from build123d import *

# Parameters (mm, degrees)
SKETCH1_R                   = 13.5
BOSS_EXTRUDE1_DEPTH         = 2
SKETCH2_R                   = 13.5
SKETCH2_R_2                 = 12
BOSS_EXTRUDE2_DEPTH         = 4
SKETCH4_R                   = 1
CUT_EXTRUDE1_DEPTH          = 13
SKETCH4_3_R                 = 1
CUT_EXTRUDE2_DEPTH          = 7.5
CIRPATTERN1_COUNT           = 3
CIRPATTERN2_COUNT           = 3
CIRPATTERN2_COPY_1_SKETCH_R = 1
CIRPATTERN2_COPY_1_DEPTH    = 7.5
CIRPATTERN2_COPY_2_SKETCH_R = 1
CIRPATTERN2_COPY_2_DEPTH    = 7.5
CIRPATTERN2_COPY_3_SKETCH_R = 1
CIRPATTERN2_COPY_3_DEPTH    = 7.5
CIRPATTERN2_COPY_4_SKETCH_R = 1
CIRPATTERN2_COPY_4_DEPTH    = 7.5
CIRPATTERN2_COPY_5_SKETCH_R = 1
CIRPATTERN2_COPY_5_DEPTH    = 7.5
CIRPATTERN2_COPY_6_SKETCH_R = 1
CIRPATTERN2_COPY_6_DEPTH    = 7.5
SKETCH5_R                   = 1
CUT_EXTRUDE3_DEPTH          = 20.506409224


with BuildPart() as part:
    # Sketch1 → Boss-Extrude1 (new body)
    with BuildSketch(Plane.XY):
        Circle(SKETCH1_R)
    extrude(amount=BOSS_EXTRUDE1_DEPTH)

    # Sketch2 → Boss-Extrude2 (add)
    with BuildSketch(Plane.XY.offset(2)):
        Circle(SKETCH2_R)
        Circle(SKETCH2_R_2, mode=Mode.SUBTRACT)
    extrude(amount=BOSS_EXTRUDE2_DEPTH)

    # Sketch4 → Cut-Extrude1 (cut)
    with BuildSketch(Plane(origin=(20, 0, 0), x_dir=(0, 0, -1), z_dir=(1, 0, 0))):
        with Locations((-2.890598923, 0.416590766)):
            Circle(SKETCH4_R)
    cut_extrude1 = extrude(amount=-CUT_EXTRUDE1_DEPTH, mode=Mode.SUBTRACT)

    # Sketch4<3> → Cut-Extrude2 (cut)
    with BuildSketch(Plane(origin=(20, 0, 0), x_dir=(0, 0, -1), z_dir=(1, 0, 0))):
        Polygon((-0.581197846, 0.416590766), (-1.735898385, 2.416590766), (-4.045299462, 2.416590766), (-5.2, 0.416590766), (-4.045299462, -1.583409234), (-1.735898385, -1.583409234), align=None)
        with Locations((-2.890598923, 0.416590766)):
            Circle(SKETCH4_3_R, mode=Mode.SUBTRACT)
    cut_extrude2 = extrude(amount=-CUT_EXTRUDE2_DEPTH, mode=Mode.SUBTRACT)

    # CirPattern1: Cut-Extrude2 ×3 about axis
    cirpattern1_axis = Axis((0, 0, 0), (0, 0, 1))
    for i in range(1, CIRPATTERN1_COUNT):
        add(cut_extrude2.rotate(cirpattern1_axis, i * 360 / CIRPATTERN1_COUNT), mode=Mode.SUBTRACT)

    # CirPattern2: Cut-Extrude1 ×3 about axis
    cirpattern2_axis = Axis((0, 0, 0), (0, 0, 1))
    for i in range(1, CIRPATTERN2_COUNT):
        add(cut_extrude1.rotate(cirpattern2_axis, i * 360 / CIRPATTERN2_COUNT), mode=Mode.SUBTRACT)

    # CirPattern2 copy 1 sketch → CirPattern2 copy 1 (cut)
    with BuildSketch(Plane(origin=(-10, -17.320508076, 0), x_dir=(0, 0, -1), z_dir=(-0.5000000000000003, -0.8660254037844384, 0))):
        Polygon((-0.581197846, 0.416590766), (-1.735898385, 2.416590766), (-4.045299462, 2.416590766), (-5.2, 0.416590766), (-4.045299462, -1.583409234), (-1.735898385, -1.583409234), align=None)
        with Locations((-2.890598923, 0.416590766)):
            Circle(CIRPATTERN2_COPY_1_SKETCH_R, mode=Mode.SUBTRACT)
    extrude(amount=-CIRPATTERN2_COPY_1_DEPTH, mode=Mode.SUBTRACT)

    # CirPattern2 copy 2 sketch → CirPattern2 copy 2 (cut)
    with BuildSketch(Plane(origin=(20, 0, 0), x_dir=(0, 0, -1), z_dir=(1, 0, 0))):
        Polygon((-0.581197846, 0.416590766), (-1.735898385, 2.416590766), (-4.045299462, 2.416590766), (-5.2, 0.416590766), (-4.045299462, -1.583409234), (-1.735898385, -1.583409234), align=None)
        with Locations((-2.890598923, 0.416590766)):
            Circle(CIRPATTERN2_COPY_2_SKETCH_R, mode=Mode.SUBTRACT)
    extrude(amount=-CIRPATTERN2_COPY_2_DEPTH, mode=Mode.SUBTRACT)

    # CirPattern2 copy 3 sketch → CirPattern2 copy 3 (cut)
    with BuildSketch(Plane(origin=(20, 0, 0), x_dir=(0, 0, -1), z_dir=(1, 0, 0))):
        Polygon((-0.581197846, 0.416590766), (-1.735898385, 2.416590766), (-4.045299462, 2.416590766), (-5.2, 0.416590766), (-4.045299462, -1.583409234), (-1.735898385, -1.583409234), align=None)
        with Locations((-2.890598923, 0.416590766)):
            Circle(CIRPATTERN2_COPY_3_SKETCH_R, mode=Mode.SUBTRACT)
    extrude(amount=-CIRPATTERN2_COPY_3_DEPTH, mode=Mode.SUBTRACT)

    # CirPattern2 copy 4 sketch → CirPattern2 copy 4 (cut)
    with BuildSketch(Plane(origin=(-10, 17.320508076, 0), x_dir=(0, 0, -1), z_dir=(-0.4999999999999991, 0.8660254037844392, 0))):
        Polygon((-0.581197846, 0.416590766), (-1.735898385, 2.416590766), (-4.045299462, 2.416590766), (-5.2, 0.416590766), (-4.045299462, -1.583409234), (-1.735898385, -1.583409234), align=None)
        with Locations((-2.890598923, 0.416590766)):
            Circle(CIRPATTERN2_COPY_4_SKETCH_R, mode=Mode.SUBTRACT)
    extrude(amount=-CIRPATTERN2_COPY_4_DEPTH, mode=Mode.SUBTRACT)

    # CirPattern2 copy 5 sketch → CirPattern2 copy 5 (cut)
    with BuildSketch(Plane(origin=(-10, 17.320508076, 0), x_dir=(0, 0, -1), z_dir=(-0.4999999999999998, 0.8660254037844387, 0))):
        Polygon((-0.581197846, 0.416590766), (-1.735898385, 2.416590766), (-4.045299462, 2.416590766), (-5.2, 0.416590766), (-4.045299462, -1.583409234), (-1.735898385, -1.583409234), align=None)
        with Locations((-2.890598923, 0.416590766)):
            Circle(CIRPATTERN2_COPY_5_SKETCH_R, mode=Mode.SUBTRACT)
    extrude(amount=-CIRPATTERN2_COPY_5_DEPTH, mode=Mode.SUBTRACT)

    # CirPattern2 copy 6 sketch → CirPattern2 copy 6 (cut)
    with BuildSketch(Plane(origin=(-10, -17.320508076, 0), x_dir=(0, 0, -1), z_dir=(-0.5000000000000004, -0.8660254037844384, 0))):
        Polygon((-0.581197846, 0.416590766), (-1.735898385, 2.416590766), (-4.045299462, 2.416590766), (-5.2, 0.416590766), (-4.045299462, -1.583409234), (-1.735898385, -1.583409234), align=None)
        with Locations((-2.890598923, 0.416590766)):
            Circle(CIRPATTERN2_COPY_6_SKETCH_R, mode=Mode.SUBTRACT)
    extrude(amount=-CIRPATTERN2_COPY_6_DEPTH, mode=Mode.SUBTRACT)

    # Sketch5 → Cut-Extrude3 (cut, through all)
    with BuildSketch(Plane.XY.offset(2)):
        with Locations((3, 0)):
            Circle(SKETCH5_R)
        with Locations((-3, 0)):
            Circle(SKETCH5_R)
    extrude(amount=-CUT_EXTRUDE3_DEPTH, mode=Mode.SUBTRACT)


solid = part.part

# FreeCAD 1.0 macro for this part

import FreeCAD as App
import Part
import Sketcher
from FreeCAD import Vector
Q = App.Units.Quantity


def add_polygon(sketch, points):
    """Adds a closed chain of lines whose ends are joined by coincident constraints."""
    first, n = sketch.GeometryCount, len(points)
    for a, b in zip(points, points[1:] + points[:1]):
        sketch.addGeometry(Part.LineSegment(App.Vector(*a, 0), App.Vector(*b, 0)), False)
    for i in range(n):
        sketch.addConstraint(Sketcher.Constraint("Coincident", first + i, 2, first + (i + 1) % n, 1))

doc = App.newDocument("Part")
params = doc.addObject("Spreadsheet::Sheet", "Params")
for row, (alias, value) in enumerate([
    ("sketch1_diameter", "27 mm"),
    ("pad1_length", "2 mm"),
    ("sketch2_diameter", "27 mm"),
    ("sketch2_diameter2", "24 mm"),
    ("pad2_length", "4 mm"),
    ("sketch3_diameter", "2 mm"),
    ("pocket1_length", "13 mm"),
    ("sketch4_diameter", "2 mm"),
    ("pocket2_length", "7.5 mm"),
    ("sketch5_diameter", "2 mm"),
    ("pocket3_length", "7.5 mm"),
    ("sketch6_diameter", "2 mm"),
    ("pocket4_length", "7.5 mm"),
    ("sketch7_diameter", "2 mm"),
    ("pocket5_length", "7.5 mm"),
    ("sketch8_diameter", "2 mm"),
    ("pocket6_length", "7.5 mm"),
    ("sketch9_diameter", "2 mm"),
    ("pocket7_length", "7.5 mm"),
    ("sketch10_diameter", "2 mm"),
    ("pocket8_length", "7.5 mm"),
    ("sketch11_diameter", "2 mm"),
], start=1):
    params.set(f"A{row}", alias)
    params.set(f"B{row}", "=" + value)
    params.setAlias(f"B{row}", alias)

body = doc.addObject("PartDesign::Body", "Body")

sketch1 = body.newObject("Sketcher::SketchObject", "Sketch")
sketch1.AttachmentSupport = (doc.getObject("XY_Plane"), [""])
sketch1.MapMode = "FlatFace"
sketch1.addGeometry(Part.Circle(Vector(0, 0, 0), Vector(0, 0, 1), 13.5), False)
sketch1.addConstraint([
    Sketcher.Constraint("Coincident", 0, 3, -1, 1),
    Sketcher.Constraint("Diameter", 0, 27.0),
])
sketch1.setExpression("Constraints[1]", "Params.sketch1_diameter")
pad1 = body.newObject("PartDesign::Pad", "Pad")
pad1.Profile = sketch1
pad1.setExpression("Length", "Params.pad1_length")

sketch2 = body.newObject("Sketcher::SketchObject", "Sketch001")
sketch2.AttachmentSupport = (doc.getObject("XY_Plane"), [""])
sketch2.MapMode = "FlatFace"
sketch2.AttachmentOffset = App.Placement(Vector(0, 0, 2), App.Rotation())
sketch2.addGeometry([
    Part.Circle(Vector(0, 0, 0), Vector(0, 0, 1), 13.5),
    Part.Circle(Vector(0, 0, 0), Vector(0, 0, 1), 12),
], False)
sketch2.addConstraint([
    Sketcher.Constraint("Coincident", 0, 3, -1, 1),
    Sketcher.Constraint("Coincident", 1, 3, -1, 1),
    Sketcher.Constraint("Diameter", 0, 27.0),
    Sketcher.Constraint("Diameter", 1, 24.0),
])
sketch2.setExpression("Constraints[2]", "Params.sketch2_diameter")
sketch2.setExpression("Constraints[3]", "Params.sketch2_diameter2")
pad2 = body.newObject("PartDesign::Pad", "Pad001")
pad2.Profile = sketch2
pad2.setExpression("Length", "Params.pad2_length")

sketch3 = body.newObject("Sketcher::SketchObject", "Sketch002")
sketch3.AttachmentSupport = (doc.getObject("YZ_Plane"), [""])
sketch3.MapMode = "FlatFace"
sketch3.AttachmentOffset = App.Placement(Vector(0, 0, 20), App.Rotation())
sketch3.addGeometry(Part.Circle(Vector(0.416591, 2.890599, 0), Vector(0, 0, 1), 1), False)
sketch3.addConstraint([
    Sketcher.Constraint("Diameter", 0, 2.0),
    Sketcher.Constraint("DistanceY", -1, 1, 0, 3, 2.890599),
    Sketcher.Constraint("DistanceX", -1, 1, 0, 3, 0.416591),
])
sketch3.setExpression("Constraints[0]", "Params.sketch3_diameter")
pocket1 = body.newObject("PartDesign::Pocket", "Pocket")
pocket1.Profile = sketch3
pocket1.setExpression("Length", "Params.pocket1_length")

sketch4 = body.newObject("Sketcher::SketchObject", "Sketch003")
sketch4.AttachmentSupport = (doc.getObject("YZ_Plane"), [""])
sketch4.MapMode = "FlatFace"
sketch4.AttachmentOffset = App.Placement(Vector(0, 0, 20), App.Rotation())
add_polygon(sketch4, [(0.416591, 0.581198), (2.416591, 1.735898), (2.416591, 4.045299), (0.416591, 5.2), (-1.583409, 4.045299), (-1.583409, 1.735898)])
sketch4.addGeometry(Part.Circle(Vector(0.416591, 2.890599, 0), Vector(0, 0, 1), 1), False)
sketch4.addConstraint([
    Sketcher.Constraint("Vertical", 1),
    Sketcher.Constraint("Vertical", 4),
    Sketcher.Constraint("Parallel", 0, 3),
    Sketcher.Constraint("Parallel", 2, 5),
    Sketcher.Constraint("Horizontal", 1, 2, 3, 2),
    Sketcher.Constraint("Horizontal", 0, 2, 4, 2),
    Sketcher.Constraint("Vertical", 6, 3, 2, 2),
    Sketcher.Constraint("Vertical", 2, 2, 5, 2),
    Sketcher.Constraint("Diameter", 6, 2.0),
    Sketcher.Constraint("Angle", 0, Q("30 deg")),
    Sketcher.Constraint("DistanceX", 6, 3, 0, 2, 2.0),
    Sketcher.Constraint("DistanceY", -1, 1, 2, 2, 5.2),
    Sketcher.Constraint("DistanceY", 1, 1, 1, 2, 2.309401),
    Sketcher.Constraint("DistanceY", -1, 1, 6, 3, 2.890599),
    Sketcher.Constraint("DistanceX", -1, 1, 6, 3, 0.416591),
])
sketch4.setExpression("Constraints[14]", "Params.sketch4_diameter")
pocket2 = body.newObject("PartDesign::Pocket", "Pocket001")
pocket2.Profile = sketch4
pocket2.setExpression("Length", "Params.pocket2_length")
doc.recompute()

polarpattern = body.newObject("PartDesign::PolarPattern", "PolarPattern")
polarpattern.Originals = [pocket2]
polarpattern.Axis = (doc.getObject("Z_Axis"), [""])
polarpattern.Angle = 360
polarpattern.Occurrences = 3
body.Tip = polarpattern
doc.recompute()

polarpattern2 = body.newObject("PartDesign::PolarPattern", "PolarPattern001")
polarpattern2.Originals = [pocket1]
polarpattern2.Axis = (doc.getObject("Z_Axis"), [""])
polarpattern2.Angle = 360
polarpattern2.Occurrences = 3
body.Tip = polarpattern2

sketch5 = body.newObject("Sketcher::SketchObject", "Sketch004")
sketch5.Placement = App.Placement(Vector(-10, -17.320508, 0), App.Rotation(Vector(0, 0, -1), Vector(0.866025404, -0.5, 0), Vector(-0.5, -0.866025404, 0), "ZXY"))
add_polygon(sketch5, [(-0.581198, 0.416591), (-1.735898, 2.416591), (-4.045299, 2.416591), (-5.2, 0.416591), (-4.045299, -1.583409), (-1.735898, -1.583409)])
sketch5.addGeometry(Part.Circle(Vector(-2.890599, 0.416591, 0), Vector(0, 0, 1), 1), False)
sketch5.addConstraint([
    Sketcher.Constraint("Horizontal", 1),
    Sketcher.Constraint("Horizontal", 4),
    Sketcher.Constraint("Parallel", 0, 3),
    Sketcher.Constraint("Parallel", 2, 5),
    Sketcher.Constraint("Horizontal", 6, 3, 2, 2),
    Sketcher.Constraint("Horizontal", 2, 2, 5, 2),
    Sketcher.Constraint("Vertical", 1, 2, 3, 2),
    Sketcher.Constraint("Vertical", 0, 2, 4, 2),
    Sketcher.Constraint("Diameter", 6, 2.0),
    Sketcher.Constraint("Angle", 0, Q("120 deg")),
    Sketcher.Constraint("DistanceY", 6, 3, 0, 2, 2.0),
    Sketcher.Constraint("DistanceX", 2, 2, -1, 1, 5.2),
    Sketcher.Constraint("DistanceX", 1, 2, 1, 1, 2.309401),
    Sketcher.Constraint("DistanceX", 6, 3, -1, 1, 2.890599),
    Sketcher.Constraint("DistanceY", -1, 1, 6, 3, 0.416591),
])
sketch5.setExpression("Constraints[14]", "Params.sketch5_diameter")
pocket3 = body.newObject("PartDesign::Pocket", "Pocket002")
pocket3.Profile = sketch5
pocket3.setExpression("Length", "Params.pocket3_length")

sketch6 = body.newObject("Sketcher::SketchObject", "Sketch005")
sketch6.AttachmentSupport = (doc.getObject("YZ_Plane"), [""])
sketch6.MapMode = "FlatFace"
sketch6.AttachmentOffset = App.Placement(Vector(0, 0, 20), App.Rotation())
add_polygon(sketch6, [(0.416591, 0.581198), (2.416591, 1.735898), (2.416591, 4.045299), (0.416591, 5.2), (-1.583409, 4.045299), (-1.583409, 1.735898)])
sketch6.addGeometry(Part.Circle(Vector(0.416591, 2.890599, 0), Vector(0, 0, 1), 1), False)
sketch6.addConstraint([
    Sketcher.Constraint("Vertical", 1),
    Sketcher.Constraint("Vertical", 4),
    Sketcher.Constraint("Parallel", 0, 3),
    Sketcher.Constraint("Parallel", 2, 5),
    Sketcher.Constraint("Horizontal", 1, 2, 3, 2),
    Sketcher.Constraint("Horizontal", 0, 2, 4, 2),
    Sketcher.Constraint("Vertical", 6, 3, 2, 2),
    Sketcher.Constraint("Vertical", 2, 2, 5, 2),
    Sketcher.Constraint("Diameter", 6, 2.0),
    Sketcher.Constraint("Angle", 0, Q("30 deg")),
    Sketcher.Constraint("DistanceX", 6, 3, 0, 2, 2.0),
    Sketcher.Constraint("DistanceY", -1, 1, 2, 2, 5.2),
    Sketcher.Constraint("DistanceY", 1, 1, 1, 2, 2.309401),
    Sketcher.Constraint("DistanceY", -1, 1, 6, 3, 2.890599),
    Sketcher.Constraint("DistanceX", -1, 1, 6, 3, 0.416591),
])
sketch6.setExpression("Constraints[14]", "Params.sketch6_diameter")
pocket4 = body.newObject("PartDesign::Pocket", "Pocket003")
pocket4.Profile = sketch6
pocket4.setExpression("Length", "Params.pocket4_length")

sketch7 = body.newObject("Sketcher::SketchObject", "Sketch006")
sketch7.AttachmentSupport = (doc.getObject("YZ_Plane"), [""])
sketch7.MapMode = "FlatFace"
sketch7.AttachmentOffset = App.Placement(Vector(0, 0, 20), App.Rotation())
add_polygon(sketch7, [(0.416591, 0.581198), (2.416591, 1.735898), (2.416591, 4.045299), (0.416591, 5.2), (-1.583409, 4.045299), (-1.583409, 1.735898)])
sketch7.addGeometry(Part.Circle(Vector(0.416591, 2.890599, 0), Vector(0, 0, 1), 1), False)
sketch7.addConstraint([
    Sketcher.Constraint("Vertical", 1),
    Sketcher.Constraint("Vertical", 4),
    Sketcher.Constraint("Parallel", 0, 3),
    Sketcher.Constraint("Parallel", 2, 5),
    Sketcher.Constraint("Horizontal", 1, 2, 3, 2),
    Sketcher.Constraint("Horizontal", 0, 2, 4, 2),
    Sketcher.Constraint("Vertical", 6, 3, 2, 2),
    Sketcher.Constraint("Vertical", 2, 2, 5, 2),
    Sketcher.Constraint("Diameter", 6, 2.0),
    Sketcher.Constraint("Angle", 0, Q("30 deg")),
    Sketcher.Constraint("DistanceX", 6, 3, 0, 2, 2.0),
    Sketcher.Constraint("DistanceY", -1, 1, 2, 2, 5.2),
    Sketcher.Constraint("DistanceY", 1, 1, 1, 2, 2.309401),
    Sketcher.Constraint("DistanceY", -1, 1, 6, 3, 2.890599),
    Sketcher.Constraint("DistanceX", -1, 1, 6, 3, 0.416591),
])
sketch7.setExpression("Constraints[14]", "Params.sketch7_diameter")
pocket5 = body.newObject("PartDesign::Pocket", "Pocket004")
pocket5.Profile = sketch7
pocket5.setExpression("Length", "Params.pocket5_length")

sketch8 = body.newObject("Sketcher::SketchObject", "Sketch007")
sketch8.Placement = App.Placement(Vector(-10, 17.320508, 0), App.Rotation(Vector(0, 0, -1), Vector(-0.866025404, -0.5, 0), Vector(-0.5, 0.866025404, 0), "ZXY"))
add_polygon(sketch8, [(-0.581198, 0.416591), (-1.735898, 2.416591), (-4.045299, 2.416591), (-5.2, 0.416591), (-4.045299, -1.583409), (-1.735898, -1.583409)])
sketch8.addGeometry(Part.Circle(Vector(-2.890599, 0.416591, 0), Vector(0, 0, 1), 1), False)
sketch8.addConstraint([
    Sketcher.Constraint("Horizontal", 1),
    Sketcher.Constraint("Horizontal", 4),
    Sketcher.Constraint("Parallel", 0, 3),
    Sketcher.Constraint("Parallel", 2, 5),
    Sketcher.Constraint("Horizontal", 6, 3, 2, 2),
    Sketcher.Constraint("Horizontal", 2, 2, 5, 2),
    Sketcher.Constraint("Vertical", 1, 2, 3, 2),
    Sketcher.Constraint("Vertical", 0, 2, 4, 2),
    Sketcher.Constraint("Diameter", 6, 2.0),
    Sketcher.Constraint("Angle", 0, Q("120 deg")),
    Sketcher.Constraint("DistanceY", 6, 3, 0, 2, 2.0),
    Sketcher.Constraint("DistanceX", 2, 2, -1, 1, 5.2),
    Sketcher.Constraint("DistanceX", 1, 2, 1, 1, 2.309401),
    Sketcher.Constraint("DistanceX", 6, 3, -1, 1, 2.890599),
    Sketcher.Constraint("DistanceY", -1, 1, 6, 3, 0.416591),
])
sketch8.setExpression("Constraints[14]", "Params.sketch8_diameter")
pocket6 = body.newObject("PartDesign::Pocket", "Pocket005")
pocket6.Profile = sketch8
pocket6.setExpression("Length", "Params.pocket6_length")

sketch9 = body.newObject("Sketcher::SketchObject", "Sketch008")
sketch9.Placement = App.Placement(Vector(-10, 17.320508, 0), App.Rotation(Vector(0, 0, -1), Vector(-0.866025404, -0.5, 0), Vector(-0.5, 0.866025404, 0), "ZXY"))
add_polygon(sketch9, [(-0.581198, 0.416591), (-1.735898, 2.416591), (-4.045299, 2.416591), (-5.2, 0.416591), (-4.045299, -1.583409), (-1.735898, -1.583409)])
sketch9.addGeometry(Part.Circle(Vector(-2.890599, 0.416591, 0), Vector(0, 0, 1), 1), False)
sketch9.addConstraint([
    Sketcher.Constraint("Horizontal", 1),
    Sketcher.Constraint("Horizontal", 4),
    Sketcher.Constraint("Parallel", 0, 3),
    Sketcher.Constraint("Parallel", 2, 5),
    Sketcher.Constraint("Horizontal", 6, 3, 2, 2),
    Sketcher.Constraint("Horizontal", 2, 2, 5, 2),
    Sketcher.Constraint("Vertical", 1, 2, 3, 2),
    Sketcher.Constraint("Vertical", 0, 2, 4, 2),
    Sketcher.Constraint("Diameter", 6, 2.0),
    Sketcher.Constraint("Angle", 0, Q("120 deg")),
    Sketcher.Constraint("DistanceY", 6, 3, 0, 2, 2.0),
    Sketcher.Constraint("DistanceX", 2, 2, -1, 1, 5.2),
    Sketcher.Constraint("DistanceX", 1, 2, 1, 1, 2.309401),
    Sketcher.Constraint("DistanceX", 6, 3, -1, 1, 2.890599),
    Sketcher.Constraint("DistanceY", -1, 1, 6, 3, 0.416591),
])
sketch9.setExpression("Constraints[14]", "Params.sketch9_diameter")
pocket7 = body.newObject("PartDesign::Pocket", "Pocket006")
pocket7.Profile = sketch9
pocket7.setExpression("Length", "Params.pocket7_length")

sketch10 = body.newObject("Sketcher::SketchObject", "Sketch009")
sketch10.Placement = App.Placement(Vector(-10, -17.320508, 0), App.Rotation(Vector(0, 0, -1), Vector(0.866025404, -0.5, 0), Vector(-0.5, -0.866025404, 0), "ZXY"))
add_polygon(sketch10, [(-0.581198, 0.416591), (-1.735898, 2.416591), (-4.045299, 2.416591), (-5.2, 0.416591), (-4.045299, -1.583409), (-1.735898, -1.583409)])
sketch10.addGeometry(Part.Circle(Vector(-2.890599, 0.416591, 0), Vector(0, 0, 1), 1), False)
sketch10.addConstraint([
    Sketcher.Constraint("Horizontal", 1),
    Sketcher.Constraint("Horizontal", 4),
    Sketcher.Constraint("Parallel", 0, 3),
    Sketcher.Constraint("Parallel", 2, 5),
    Sketcher.Constraint("Horizontal", 6, 3, 2, 2),
    Sketcher.Constraint("Horizontal", 2, 2, 5, 2),
    Sketcher.Constraint("Vertical", 1, 2, 3, 2),
    Sketcher.Constraint("Vertical", 0, 2, 4, 2),
    Sketcher.Constraint("Diameter", 6, 2.0),
    Sketcher.Constraint("Angle", 0, Q("120 deg")),
    Sketcher.Constraint("DistanceY", 6, 3, 0, 2, 2.0),
    Sketcher.Constraint("DistanceX", 2, 2, -1, 1, 5.2),
    Sketcher.Constraint("DistanceX", 1, 2, 1, 1, 2.309401),
    Sketcher.Constraint("DistanceX", 6, 3, -1, 1, 2.890599),
    Sketcher.Constraint("DistanceY", -1, 1, 6, 3, 0.416591),
])
sketch10.setExpression("Constraints[14]", "Params.sketch10_diameter")
pocket8 = body.newObject("PartDesign::Pocket", "Pocket007")
pocket8.Profile = sketch10
pocket8.setExpression("Length", "Params.pocket8_length")

sketch11 = body.newObject("Sketcher::SketchObject", "Sketch010")
sketch11.AttachmentSupport = (doc.getObject("XY_Plane"), [""])
sketch11.MapMode = "FlatFace"
sketch11.AttachmentOffset = App.Placement(Vector(0, 0, 2), App.Rotation())
sketch11.addGeometry([
    Part.Circle(Vector(3, 0, 0), Vector(0, 0, 1), 1),
    Part.Circle(Vector(-3, 0, 0), Vector(0, 0, 1), 1),
], False)
sketch11.addConstraint([
    Sketcher.Constraint("Equal", 0, 1),
    Sketcher.Constraint("Symmetric", 0, 3, 1, 3, -1, 1),
    Sketcher.Constraint("PointOnObject", 0, 3, -1),
    Sketcher.Constraint("Diameter", 0, 2.0),
    Sketcher.Constraint("DistanceX", -1, 1, 0, 3, 3.0),
])
sketch11.setExpression("Constraints[3]", "Params.sketch11_diameter")
pocket9 = body.newObject("PartDesign::Pocket", "Pocket008")
pocket9.Profile = sketch11
pocket9.Type = "ThroughAll"

doc.recompute()
